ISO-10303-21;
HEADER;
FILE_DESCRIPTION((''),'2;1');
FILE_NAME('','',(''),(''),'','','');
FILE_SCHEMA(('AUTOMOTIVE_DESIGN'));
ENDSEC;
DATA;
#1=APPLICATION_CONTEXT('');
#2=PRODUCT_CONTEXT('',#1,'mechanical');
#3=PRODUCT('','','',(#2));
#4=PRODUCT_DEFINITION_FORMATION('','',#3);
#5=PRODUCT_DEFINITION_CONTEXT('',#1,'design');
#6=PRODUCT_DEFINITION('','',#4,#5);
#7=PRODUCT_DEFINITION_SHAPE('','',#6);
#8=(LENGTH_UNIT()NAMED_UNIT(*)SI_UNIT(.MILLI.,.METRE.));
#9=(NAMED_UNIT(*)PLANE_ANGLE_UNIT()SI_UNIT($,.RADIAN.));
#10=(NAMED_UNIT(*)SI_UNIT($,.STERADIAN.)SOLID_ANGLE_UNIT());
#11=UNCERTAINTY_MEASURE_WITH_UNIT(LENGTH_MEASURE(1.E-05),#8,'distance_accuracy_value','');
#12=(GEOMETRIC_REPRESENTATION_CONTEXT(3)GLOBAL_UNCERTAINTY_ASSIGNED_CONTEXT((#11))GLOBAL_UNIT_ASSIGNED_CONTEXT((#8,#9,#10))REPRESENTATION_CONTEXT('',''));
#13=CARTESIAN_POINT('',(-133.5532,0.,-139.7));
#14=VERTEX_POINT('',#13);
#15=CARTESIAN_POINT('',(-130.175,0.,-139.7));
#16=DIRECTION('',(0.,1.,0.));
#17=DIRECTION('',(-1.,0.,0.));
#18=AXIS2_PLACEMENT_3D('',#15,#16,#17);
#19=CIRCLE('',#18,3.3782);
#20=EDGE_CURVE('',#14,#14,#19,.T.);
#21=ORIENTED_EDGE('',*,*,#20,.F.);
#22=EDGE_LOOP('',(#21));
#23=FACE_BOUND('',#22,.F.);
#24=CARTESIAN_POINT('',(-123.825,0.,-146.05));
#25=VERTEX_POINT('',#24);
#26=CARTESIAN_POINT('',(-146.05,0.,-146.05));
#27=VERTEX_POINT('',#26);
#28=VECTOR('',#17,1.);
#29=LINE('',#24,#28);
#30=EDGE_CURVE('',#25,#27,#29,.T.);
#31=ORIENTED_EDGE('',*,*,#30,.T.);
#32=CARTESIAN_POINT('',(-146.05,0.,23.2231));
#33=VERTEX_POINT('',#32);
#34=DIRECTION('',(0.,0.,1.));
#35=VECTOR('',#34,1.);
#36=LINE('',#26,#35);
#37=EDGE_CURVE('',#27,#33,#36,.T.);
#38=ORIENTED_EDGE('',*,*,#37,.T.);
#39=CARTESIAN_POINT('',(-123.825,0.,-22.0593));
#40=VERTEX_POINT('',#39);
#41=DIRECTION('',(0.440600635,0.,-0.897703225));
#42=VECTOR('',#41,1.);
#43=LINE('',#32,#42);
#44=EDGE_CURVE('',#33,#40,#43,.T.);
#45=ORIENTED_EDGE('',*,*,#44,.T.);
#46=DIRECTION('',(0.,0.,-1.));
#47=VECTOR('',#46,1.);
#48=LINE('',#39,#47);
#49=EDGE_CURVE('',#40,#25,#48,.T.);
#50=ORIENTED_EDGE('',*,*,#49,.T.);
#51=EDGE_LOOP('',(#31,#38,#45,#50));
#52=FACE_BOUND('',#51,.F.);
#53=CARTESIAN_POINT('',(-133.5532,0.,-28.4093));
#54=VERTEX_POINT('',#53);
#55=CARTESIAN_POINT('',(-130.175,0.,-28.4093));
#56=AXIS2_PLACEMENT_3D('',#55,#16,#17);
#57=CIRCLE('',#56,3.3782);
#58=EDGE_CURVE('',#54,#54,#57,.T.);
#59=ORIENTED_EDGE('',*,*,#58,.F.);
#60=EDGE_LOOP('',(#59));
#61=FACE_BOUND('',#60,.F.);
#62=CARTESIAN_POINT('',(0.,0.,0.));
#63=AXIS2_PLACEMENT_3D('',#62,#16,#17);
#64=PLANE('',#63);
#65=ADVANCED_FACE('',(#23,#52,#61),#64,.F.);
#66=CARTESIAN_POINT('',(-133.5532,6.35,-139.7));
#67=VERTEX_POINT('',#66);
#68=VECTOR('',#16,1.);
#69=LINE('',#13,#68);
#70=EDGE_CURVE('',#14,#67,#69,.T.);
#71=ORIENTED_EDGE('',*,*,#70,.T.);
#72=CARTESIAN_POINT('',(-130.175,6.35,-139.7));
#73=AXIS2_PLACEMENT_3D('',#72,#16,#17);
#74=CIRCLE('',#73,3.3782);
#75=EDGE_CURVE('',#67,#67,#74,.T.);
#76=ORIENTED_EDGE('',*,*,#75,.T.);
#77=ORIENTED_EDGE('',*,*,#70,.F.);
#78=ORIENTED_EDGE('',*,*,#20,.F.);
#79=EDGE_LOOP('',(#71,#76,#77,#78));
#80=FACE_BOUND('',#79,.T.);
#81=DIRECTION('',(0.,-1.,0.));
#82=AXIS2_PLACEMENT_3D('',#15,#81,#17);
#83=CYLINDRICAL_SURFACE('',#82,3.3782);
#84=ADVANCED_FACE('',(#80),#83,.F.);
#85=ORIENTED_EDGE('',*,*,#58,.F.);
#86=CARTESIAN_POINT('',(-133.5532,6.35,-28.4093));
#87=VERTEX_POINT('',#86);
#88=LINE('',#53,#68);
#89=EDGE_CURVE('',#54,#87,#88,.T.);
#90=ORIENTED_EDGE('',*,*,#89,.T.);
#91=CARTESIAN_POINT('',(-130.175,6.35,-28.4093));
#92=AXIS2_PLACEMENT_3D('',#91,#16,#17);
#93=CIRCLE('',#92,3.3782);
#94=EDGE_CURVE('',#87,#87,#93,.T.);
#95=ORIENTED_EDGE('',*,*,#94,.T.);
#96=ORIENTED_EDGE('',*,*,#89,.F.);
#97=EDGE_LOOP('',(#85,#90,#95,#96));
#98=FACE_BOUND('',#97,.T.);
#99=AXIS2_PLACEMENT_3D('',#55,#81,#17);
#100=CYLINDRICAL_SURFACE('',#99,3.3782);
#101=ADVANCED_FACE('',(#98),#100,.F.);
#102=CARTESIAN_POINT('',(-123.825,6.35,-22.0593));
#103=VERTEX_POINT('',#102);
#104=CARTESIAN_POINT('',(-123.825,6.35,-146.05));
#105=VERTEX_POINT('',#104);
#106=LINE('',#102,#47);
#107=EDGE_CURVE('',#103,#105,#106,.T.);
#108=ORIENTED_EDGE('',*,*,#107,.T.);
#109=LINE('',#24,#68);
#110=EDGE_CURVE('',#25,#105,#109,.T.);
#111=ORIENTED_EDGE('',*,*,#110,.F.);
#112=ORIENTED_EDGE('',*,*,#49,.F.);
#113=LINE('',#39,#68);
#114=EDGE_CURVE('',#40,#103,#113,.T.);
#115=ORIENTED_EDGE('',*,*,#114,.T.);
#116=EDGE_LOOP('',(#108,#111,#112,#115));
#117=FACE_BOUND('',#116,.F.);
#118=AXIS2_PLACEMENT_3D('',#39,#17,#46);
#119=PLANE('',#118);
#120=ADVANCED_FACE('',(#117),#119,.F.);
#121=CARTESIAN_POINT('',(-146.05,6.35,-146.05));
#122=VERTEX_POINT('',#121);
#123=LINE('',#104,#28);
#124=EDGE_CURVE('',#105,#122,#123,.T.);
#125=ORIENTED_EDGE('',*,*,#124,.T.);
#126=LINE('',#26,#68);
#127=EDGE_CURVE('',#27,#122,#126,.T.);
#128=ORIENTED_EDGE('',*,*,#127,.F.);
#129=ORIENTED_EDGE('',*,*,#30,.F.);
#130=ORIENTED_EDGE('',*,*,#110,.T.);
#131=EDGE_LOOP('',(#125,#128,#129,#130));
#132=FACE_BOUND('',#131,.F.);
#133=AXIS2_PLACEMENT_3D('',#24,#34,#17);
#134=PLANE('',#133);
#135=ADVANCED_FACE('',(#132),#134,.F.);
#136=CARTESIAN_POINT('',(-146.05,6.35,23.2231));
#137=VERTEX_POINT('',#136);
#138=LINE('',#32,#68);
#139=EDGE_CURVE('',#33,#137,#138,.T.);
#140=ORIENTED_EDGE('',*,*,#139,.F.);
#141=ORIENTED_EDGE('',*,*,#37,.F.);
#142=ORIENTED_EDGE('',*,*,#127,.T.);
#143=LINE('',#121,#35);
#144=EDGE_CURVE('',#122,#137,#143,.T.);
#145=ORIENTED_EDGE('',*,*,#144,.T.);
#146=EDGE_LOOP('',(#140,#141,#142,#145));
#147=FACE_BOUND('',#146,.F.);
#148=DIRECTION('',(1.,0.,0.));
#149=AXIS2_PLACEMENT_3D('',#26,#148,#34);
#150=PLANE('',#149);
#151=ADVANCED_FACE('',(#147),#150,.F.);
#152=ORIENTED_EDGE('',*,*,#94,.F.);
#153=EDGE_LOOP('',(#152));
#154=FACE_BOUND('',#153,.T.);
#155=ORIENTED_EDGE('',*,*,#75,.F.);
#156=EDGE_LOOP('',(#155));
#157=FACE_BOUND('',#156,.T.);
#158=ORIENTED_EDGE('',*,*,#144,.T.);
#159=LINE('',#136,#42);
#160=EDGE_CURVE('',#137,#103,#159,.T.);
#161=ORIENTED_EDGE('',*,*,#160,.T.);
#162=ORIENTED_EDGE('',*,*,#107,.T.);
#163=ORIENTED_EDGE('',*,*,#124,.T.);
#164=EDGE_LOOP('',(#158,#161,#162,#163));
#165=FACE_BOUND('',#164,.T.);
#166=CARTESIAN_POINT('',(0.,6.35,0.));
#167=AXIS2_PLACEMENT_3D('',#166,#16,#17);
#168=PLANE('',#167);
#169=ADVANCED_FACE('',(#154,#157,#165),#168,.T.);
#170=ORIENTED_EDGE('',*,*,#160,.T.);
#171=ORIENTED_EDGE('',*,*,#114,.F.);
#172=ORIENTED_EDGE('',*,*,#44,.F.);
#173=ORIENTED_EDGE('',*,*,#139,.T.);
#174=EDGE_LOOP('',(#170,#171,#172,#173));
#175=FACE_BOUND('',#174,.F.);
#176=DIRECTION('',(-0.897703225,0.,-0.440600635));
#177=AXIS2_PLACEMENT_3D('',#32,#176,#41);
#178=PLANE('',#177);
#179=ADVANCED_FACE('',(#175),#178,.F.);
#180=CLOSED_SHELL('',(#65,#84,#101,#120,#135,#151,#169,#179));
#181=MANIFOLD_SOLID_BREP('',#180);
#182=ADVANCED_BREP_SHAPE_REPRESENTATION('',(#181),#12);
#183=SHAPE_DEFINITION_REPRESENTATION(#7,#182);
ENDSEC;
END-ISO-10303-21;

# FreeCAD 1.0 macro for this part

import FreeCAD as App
import Part
import Sketcher
Q = App.Units.Quantity

doc = App.newDocument("Part")
body = doc.addObject("PartDesign::Body", "Body")

# Sketch on XZ plane
sketch1 = doc.addObject("Sketcher::SketchObject", "Sketch")
body.addObject(sketch1)
sketch1.AttachmentSupport = (doc.XZ_Plane, [""])
sketch1.MapMode = "FlatFace"
sketch1.addGeometry([
    Part.LineSegment(App.Vector(-146.1, -146.1, 0), App.Vector(-146.1, 23.2, 0)),  # 0
    Part.LineSegment(App.Vector(-146.1, 23.2, 0), App.Vector(-123.8, -22.1, 0)),  # 1
    Part.LineSegment(App.Vector(-123.8, -22.1, 0), App.Vector(-123.8, -146.1, 0)),  # 2
    Part.LineSegment(App.Vector(-123.8, -146.1, 0), App.Vector(-146.1, -146.1, 0)),  # 3
    Part.Circle(App.Vector(-130.2, -139.7, 0), App.Vector(0, 0, 1), 3.4),  # 4
    Part.Circle(App.Vector(-130.2, -28.4, 0), App.Vector(0, 0, 1), 3.4),  # 5
], False)
sketch1.addConstraint([
    Sketcher.Constraint("Coincident", 0, 2, 1, 1),
    Sketcher.Constraint("Coincident", 1, 2, 2, 1),
    Sketcher.Constraint("Coincident", 2, 2, 3, 1),
    Sketcher.Constraint("Coincident", 3, 2, 0, 1),
    Sketcher.Constraint("Vertical", 0),
    Sketcher.Constraint("Vertical", 2),
    Sketcher.Constraint("Horizontal", 3),
    Sketcher.Constraint("Equal", 4, 5),
    Sketcher.Constraint("Vertical", 4, 3, 5, 3),
    Sketcher.Constraint("DistanceX", 3, 2, 3, 1, Q("0.875 in")),
    Sketcher.Constraint("Diameter", 4, Q("0.266 in")),
    Sketcher.Constraint("DistanceY", 4, 3, -1, 1, Q("5.5 in")),
    Sketcher.Constraint("DistanceX", 0, 2, -1, 1, Q("5.75 in")),
    Sketcher.Constraint("DistanceY", 2, 2, -1, 1, Q("5.75 in")),
    Sketcher.Constraint("DistanceX", 5, 3, 1, 2, Q("0.25 in")),
    Sketcher.Constraint("DistanceY", 5, 3, 1, 2, Q("0.25 in")),
    Sketcher.Constraint("DistanceY", 0, 1, 0, 2, Q("6.6643 in")),
    Sketcher.Constraint("DistanceY", 2, 2, 2, 1, 123.9907),
])
pad1 = doc.addObject("PartDesign::Pad", "Pad")
body.addObject(pad1)
pad1.Profile = sketch1
pad1.Length = Q("0.25 in")
pad1.Reversed = True

doc.recompute()
